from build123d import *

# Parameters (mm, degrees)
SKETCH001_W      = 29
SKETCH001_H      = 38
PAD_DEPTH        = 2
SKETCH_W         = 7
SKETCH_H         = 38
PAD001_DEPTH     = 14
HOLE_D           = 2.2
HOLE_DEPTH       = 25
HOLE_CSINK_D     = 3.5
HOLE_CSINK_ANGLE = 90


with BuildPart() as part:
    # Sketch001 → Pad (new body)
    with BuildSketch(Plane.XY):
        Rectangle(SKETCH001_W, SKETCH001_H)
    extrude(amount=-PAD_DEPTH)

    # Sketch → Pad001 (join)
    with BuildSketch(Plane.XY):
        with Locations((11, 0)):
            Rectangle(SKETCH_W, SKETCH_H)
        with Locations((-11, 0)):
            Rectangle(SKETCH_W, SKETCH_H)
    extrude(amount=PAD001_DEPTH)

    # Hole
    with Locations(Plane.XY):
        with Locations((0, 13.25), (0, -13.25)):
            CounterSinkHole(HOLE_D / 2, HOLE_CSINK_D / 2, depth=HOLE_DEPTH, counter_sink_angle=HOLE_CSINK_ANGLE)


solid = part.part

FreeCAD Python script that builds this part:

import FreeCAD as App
import Part
import Sketcher
Q = App.Units.Quantity


def add_polygon(sketch, points):
    """Adds a closed chain of lines whose ends are joined by coincident constraints."""
    first, n = sketch.GeometryCount, len(points)
    for a, b in zip(points, points[1:] + points[:1]):
        sketch.addGeometry(Part.LineSegment(App.Vector(*a, 0), App.Vector(*b, 0)), False)
    for i in range(n):
        sketch.addConstraint(Sketcher.Constraint("Coincident", first + i, 2, first + (i + 1) % n, 1))

doc = App.newDocument("Part")
body = doc.addObject("PartDesign::Body", "Body")

sketch1 = body.newObject("Sketcher::SketchObject", "Sketch")
sketch1.AttachmentSupport = (doc.getObject("XY_Plane"), [""])
sketch1.MapMode = "FlatFace"
add_polygon(sketch1, [(-14, 19), (-14, -19), (14, -19), (14, 19)])
sketch1.addConstraint([
    Sketcher.Constraint("Vertical", 0),
    Sketcher.Constraint("Horizontal", 1),
    Sketcher.Constraint("Vertical", 2),
    Sketcher.Constraint("Horizontal", 3),
    Sketcher.Constraint("Symmetric", 0, 2, 2, 2, -1, 1),
    Sketcher.Constraint("DistanceX", 1, 1, 1, 2, Q("29 mm")),
    Sketcher.Constraint("DistanceY", 0, 2, 0, 1, Q("38 mm")),
])
pad1 = body.newObject("PartDesign::Pad", "Pad")
pad1.Profile = sketch1
pad1.Length = 2
pad1.Reversed = True

sketch2 = body.newObject("Sketcher::SketchObject", "Sketch001")
sketch2.AttachmentSupport = (doc.getObject("XY_Plane"), [""])
sketch2.MapMode = "FlatFace"
add_polygon(sketch2, [(8, 19), (8, -19), (14, -19), (14, 19)])
add_polygon(sketch2, [(-14, 19), (-14, -19), (-8, -19), (-8, 19)])
sketch2.addConstraint([
    Sketcher.Constraint("Vertical", 0),
    Sketcher.Constraint("Horizontal", 1),
    Sketcher.Constraint("Vertical", 2),
    Sketcher.Constraint("Horizontal", 3),
    Sketcher.Constraint("Vertical", 4),
    Sketcher.Constraint("Horizontal", 5),
    Sketcher.Constraint("Vertical", 6),
    Sketcher.Constraint("Horizontal", 7),
    Sketcher.Constraint("Symmetric", 2, 2, 4, 2, -1, 1),
    Sketcher.Constraint("Symmetric", 0, 2, 6, 2, -1, 1),
    Sketcher.Constraint("Horizontal", 1, 2, 4, 2),
    Sketcher.Constraint("DistanceX", 1, 1, 1, 2, Q("7 mm")),
    Sketcher.Constraint("DistanceY", 0, 2, 0, 1, Q("38 mm")),
    Sketcher.Constraint("DistanceX", 4, 2, 0, 2, Q("22 mm")),
])
pad2 = body.newObject("PartDesign::Pad", "Pad001")
pad2.Profile = sketch2
pad2.Length = 14

sketch3 = body.newObject("Sketcher::SketchObject", "Sketch002")
sketch3.AttachmentSupport = (doc.getObject("XY_Plane"), [""])
sketch3.MapMode = "FlatFace"
sketch3.addGeometry([
    Part.Circle(App.Vector(0, 13.2, 0), App.Vector(0, 0, 1), 1.1),
    Part.Circle(App.Vector(0, -13.2, 0), App.Vector(0, 0, 1), 1.1),
], False)
sketch3.addConstraint([
    Sketcher.Constraint("Equal", 0, 1),
    Sketcher.Constraint("Symmetric", 0, 3, 1, 3, -1, 1),
    Sketcher.Constraint("PointOnObject", 0, 3, -2),
    Sketcher.Constraint("Diameter", 0, Q("2.2 mm")),
    Sketcher.Constraint("DistanceY", 1, 3, 0, 3, Q("26.5 mm")),
])
doc.recompute()
hole = body.newObject("PartDesign::Hole", "Hole")
hole.Profile = sketch3
hole.ThreadType = "None"
hole.Diameter = 2.2
hole.DepthType = "Dimension"
hole.Depth = 25
hole.DrillPoint = "Flat"
hole.HoleCutType = "Countersink"
hole.HoleCutDiameter = 3.5
hole.HoleCutCountersinkAngle = 90

doc.recompute()
